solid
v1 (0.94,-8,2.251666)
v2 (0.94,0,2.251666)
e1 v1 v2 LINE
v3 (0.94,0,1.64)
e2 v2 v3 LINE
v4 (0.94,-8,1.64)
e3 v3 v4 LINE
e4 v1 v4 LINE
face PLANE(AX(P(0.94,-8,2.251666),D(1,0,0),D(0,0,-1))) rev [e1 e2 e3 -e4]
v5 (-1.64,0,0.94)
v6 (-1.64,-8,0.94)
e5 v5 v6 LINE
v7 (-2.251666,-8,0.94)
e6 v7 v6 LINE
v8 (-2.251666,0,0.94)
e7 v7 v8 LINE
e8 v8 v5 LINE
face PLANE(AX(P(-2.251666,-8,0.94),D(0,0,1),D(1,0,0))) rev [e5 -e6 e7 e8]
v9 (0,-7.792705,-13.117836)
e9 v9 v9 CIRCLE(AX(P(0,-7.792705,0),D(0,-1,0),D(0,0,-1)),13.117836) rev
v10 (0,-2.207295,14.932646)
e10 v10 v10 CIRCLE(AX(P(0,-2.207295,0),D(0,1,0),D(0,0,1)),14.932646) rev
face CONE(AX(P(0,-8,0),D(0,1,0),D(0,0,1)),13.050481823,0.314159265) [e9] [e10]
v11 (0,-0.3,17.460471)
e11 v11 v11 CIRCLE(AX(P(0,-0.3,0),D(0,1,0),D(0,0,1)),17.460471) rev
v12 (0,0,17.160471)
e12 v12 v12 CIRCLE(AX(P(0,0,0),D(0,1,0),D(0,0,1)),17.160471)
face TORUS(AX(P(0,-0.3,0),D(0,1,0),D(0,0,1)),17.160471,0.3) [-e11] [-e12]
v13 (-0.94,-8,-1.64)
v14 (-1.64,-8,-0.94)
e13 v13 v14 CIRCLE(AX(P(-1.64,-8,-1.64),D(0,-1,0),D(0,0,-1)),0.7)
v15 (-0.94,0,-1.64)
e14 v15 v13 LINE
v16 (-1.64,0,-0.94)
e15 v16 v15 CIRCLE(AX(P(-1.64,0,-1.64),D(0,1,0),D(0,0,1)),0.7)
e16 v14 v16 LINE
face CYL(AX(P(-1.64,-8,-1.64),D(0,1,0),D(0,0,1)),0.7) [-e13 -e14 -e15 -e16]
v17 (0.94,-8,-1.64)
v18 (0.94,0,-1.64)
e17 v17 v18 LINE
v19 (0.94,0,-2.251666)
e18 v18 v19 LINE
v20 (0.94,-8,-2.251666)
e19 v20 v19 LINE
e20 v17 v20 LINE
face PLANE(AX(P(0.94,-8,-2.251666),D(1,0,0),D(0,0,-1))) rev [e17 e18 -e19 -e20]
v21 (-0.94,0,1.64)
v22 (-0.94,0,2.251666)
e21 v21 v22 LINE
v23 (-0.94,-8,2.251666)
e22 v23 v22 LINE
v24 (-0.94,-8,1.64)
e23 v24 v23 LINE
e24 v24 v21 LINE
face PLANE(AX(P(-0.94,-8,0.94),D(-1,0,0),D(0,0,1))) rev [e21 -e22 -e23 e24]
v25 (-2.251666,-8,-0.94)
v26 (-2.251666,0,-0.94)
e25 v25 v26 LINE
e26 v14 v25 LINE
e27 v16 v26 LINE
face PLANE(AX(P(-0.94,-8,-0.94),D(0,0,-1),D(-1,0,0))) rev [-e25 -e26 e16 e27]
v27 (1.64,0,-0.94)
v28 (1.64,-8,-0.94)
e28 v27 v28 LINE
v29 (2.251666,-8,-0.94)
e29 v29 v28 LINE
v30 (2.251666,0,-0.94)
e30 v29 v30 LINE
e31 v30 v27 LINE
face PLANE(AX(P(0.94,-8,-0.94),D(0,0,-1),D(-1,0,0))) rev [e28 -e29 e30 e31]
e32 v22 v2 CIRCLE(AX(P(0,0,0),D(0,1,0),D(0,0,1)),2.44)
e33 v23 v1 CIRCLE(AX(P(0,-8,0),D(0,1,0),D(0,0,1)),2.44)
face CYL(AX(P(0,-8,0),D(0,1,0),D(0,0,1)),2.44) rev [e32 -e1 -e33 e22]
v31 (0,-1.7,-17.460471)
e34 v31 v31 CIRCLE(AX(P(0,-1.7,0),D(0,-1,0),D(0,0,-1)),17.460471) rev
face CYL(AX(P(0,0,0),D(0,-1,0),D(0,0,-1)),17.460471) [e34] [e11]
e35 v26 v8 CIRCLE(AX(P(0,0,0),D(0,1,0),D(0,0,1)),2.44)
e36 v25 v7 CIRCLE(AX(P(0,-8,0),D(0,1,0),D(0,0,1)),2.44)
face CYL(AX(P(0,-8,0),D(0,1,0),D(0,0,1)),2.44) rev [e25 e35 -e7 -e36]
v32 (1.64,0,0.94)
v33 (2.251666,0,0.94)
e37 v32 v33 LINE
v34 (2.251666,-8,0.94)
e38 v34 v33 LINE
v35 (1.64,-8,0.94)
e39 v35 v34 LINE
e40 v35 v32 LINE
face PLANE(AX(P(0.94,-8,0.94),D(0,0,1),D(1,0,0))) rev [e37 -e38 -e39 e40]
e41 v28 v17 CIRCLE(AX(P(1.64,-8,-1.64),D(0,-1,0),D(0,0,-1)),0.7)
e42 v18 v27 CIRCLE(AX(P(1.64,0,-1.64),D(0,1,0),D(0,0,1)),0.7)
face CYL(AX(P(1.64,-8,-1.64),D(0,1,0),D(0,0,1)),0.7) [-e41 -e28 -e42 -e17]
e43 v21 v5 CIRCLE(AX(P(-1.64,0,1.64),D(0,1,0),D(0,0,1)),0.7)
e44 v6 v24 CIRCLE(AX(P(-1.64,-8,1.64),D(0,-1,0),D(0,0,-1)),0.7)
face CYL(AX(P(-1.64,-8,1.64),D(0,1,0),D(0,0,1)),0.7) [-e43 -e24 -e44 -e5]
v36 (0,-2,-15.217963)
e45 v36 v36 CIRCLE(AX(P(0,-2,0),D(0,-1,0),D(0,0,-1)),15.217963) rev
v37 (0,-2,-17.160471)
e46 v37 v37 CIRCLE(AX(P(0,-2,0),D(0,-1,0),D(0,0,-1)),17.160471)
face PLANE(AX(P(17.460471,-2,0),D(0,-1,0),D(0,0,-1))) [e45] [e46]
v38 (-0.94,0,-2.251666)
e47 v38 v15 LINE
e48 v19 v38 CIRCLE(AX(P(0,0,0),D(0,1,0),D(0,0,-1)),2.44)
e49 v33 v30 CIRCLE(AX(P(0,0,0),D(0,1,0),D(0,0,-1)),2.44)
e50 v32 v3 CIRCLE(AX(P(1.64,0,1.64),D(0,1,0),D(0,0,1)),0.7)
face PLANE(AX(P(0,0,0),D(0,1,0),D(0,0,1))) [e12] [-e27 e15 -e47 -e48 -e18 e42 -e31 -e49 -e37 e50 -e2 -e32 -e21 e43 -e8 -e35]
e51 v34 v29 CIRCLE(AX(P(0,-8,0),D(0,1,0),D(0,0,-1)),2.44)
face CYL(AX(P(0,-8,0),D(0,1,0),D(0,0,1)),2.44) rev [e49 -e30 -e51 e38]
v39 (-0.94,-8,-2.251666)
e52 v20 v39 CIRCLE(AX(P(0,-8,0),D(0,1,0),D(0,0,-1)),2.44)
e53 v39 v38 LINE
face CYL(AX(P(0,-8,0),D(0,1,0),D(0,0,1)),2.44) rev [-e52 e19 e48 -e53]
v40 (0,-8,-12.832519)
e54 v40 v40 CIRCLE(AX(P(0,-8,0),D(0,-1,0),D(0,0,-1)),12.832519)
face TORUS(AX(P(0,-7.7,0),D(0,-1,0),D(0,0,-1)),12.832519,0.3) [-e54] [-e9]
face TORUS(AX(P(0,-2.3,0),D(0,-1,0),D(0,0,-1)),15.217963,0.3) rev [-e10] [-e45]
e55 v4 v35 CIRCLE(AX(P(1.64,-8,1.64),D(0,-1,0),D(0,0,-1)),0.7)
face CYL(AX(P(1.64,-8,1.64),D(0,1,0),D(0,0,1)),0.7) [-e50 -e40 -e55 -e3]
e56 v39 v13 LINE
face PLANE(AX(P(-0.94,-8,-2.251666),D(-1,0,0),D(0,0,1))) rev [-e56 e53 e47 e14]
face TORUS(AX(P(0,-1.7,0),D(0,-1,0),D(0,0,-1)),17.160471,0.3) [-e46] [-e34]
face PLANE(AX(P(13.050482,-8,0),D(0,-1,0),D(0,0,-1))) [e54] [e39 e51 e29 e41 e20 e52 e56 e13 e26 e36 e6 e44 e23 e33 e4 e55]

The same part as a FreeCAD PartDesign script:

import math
import FreeCAD as App
import Part
import Sketcher
Q = App.Units.Quantity


def edges_at(feature, points):
    """Names of the edges that pass closest to the given points."""
    edges = feature.Shape.Edges
    near = lambda p: min(range(len(edges)), key=lambda i: edges[i].distToShape(Part.Vertex(*p))[0])
    return sorted({f"Edge{near(p) + 1}" for p in points})


def add_polygon(sketch, points):
    """Adds a closed chain of lines whose ends are joined by coincident constraints."""
    first, n = sketch.GeometryCount, len(points)
    for a, b in zip(points, points[1:] + points[:1]):
        sketch.addGeometry(Part.LineSegment(App.Vector(*a, 0), App.Vector(*b, 0)), False)
    for i in range(n):
        sketch.addConstraint(Sketcher.Constraint("Coincident", first + i, 2, first + (i + 1) % n, 1))

doc = App.newDocument("Part")
params = doc.addObject("Spreadsheet::Sheet", "Params")
for row, (alias, value) in enumerate([
    ("sketch1_height", "8 mm"),
    ("sketch1_height2", "2 mm"),
    ("revolution_angle", "360 deg"),
    ("sketch2_radius", "2.44 mm"),
    ("fillet_radius", "0.7 mm"),
    ("fillet2_radius", "0.3 mm"),
], start=1):
    params.set(f"A{row}", alias)
    params.set(f"B{row}", "=" + value)
    params.setAlias(f"B{row}", alias)

body = doc.addObject("PartDesign::Body", "Body")

sketch1 = body.newObject("Sketcher::SketchObject", "Sketch")
sketch1.AttachmentSupport = (doc.getObject("XY_Plane"), [""])
sketch1.MapMode = "FlatFace"
add_polygon(sketch1, [(17.5, 0), (0, 0), (0, -8), (13.1, -8), (15, -2), (17.5, -2)])
sketch1.addConstraint([
    Sketcher.Constraint("Horizontal", 0),
    Sketcher.Constraint("Vertical", 1),
    Sketcher.Constraint("Horizontal", 2),
    Sketcher.Constraint("Horizontal", 4),
    Sketcher.Constraint("Vertical", 5),
    Sketcher.Constraint("Coincident", 0, 2, -1, 1),
    Sketcher.Constraint("DistanceY", 1, 2, 1, 1, Q("8 mm")),
    Sketcher.Constraint("DistanceY", 5, 1, 5, 2, Q("2 mm")),
    Sketcher.Constraint("Angle", 3, Q("72 deg")),
    Sketcher.Constraint("DistanceX", -1, 1, 3, 2, Q("15 mm")),
    Sketcher.Constraint("DistanceX", 0, 2, 0, 1, Q("17.460471 mm")),
])
sketch1.setExpression("Constraints[12]", "Params.sketch1_height")
sketch1.setExpression("Constraints[13]", "Params.sketch1_height2")
revolution = body.newObject("PartDesign::Revolution", "Revolution")
revolution.Profile = sketch1
revolution.ReferenceAxis = (sketch1, ["V_Axis"])
revolution.setExpression("Angle", "Params.revolution_angle")

sketch2 = body.newObject("Sketcher::SketchObject", "Sketch001")
sketch2.AttachmentSupport = (doc.getObject("XZ_Plane"), [""])
sketch2.MapMode = "FlatFace"
sketch2.addGeometry([
    Part.LineSegment(App.Vector(-0.9, -0.9, 0), App.Vector(-2.3, -0.9, 0)),
    Part.ArcOfCircle(Part.Circle(App.Vector(0, 0, 0), App.Vector(0, 0, 1), 2.4), math.radians(157), math.radians(203)),
    Part.LineSegment(App.Vector(-2.3, 0.9, 0), App.Vector(-0.9, 0.9, 0)),
    Part.LineSegment(App.Vector(-0.9, 0.9, 0), App.Vector(-0.9, 2.3, 0)),
    Part.ArcOfCircle(Part.Circle(App.Vector(0, 0, 0), App.Vector(0, 0, 1), 2.4), math.radians(67), math.radians(113)),
    Part.LineSegment(App.Vector(0.9, 2.3, 0), App.Vector(0.9, 0.9, 0)),
    Part.LineSegment(App.Vector(0.9, 0.9, 0), App.Vector(2.3, 0.9, 0)),
    Part.ArcOfCircle(Part.Circle(App.Vector(0, 0, 0), App.Vector(0, 0, 1), 2.4), math.radians(-23), math.radians(23)),
    Part.LineSegment(App.Vector(2.3, -0.9, 0), App.Vector(0.9, -0.9, 0)),
    Part.LineSegment(App.Vector(0.9, -0.9, 0), App.Vector(0.9, -2.3, 0)),
    Part.ArcOfCircle(Part.Circle(App.Vector(0, 0, 0), App.Vector(0, 0, 1), 2.4), math.radians(-113), math.radians(-67)),
    Part.LineSegment(App.Vector(-0.9, -2.3, 0), App.Vector(-0.9, -0.9, 0)),
], False)
sketch2.addConstraint([
    Sketcher.Constraint("Coincident", 0, 2, 1, 2),
    Sketcher.Constraint("Coincident", 1, 1, 2, 1),
    Sketcher.Constraint("Coincident", 2, 2, 3, 1),
    Sketcher.Constraint("Coincident", 3, 2, 4, 2),
    Sketcher.Constraint("Coincident", 4, 1, 5, 1),
    Sketcher.Constraint("Coincident", 5, 2, 6, 1),
    Sketcher.Constraint("Coincident", 6, 2, 7, 2),
    Sketcher.Constraint("Coincident", 7, 1, 8, 1),
    Sketcher.Constraint("Coincident", 8, 2, 9, 1),
    Sketcher.Constraint("Coincident", 9, 2, 10, 2),
    Sketcher.Constraint("Coincident", 10, 1, 11, 1),
    Sketcher.Constraint("Coincident", 11, 2, 0, 1),
    Sketcher.Constraint("Horizontal", 0),
    Sketcher.Constraint("Horizontal", 2),
    Sketcher.Constraint("Vertical", 3),
    Sketcher.Constraint("Vertical", 5),
    Sketcher.Constraint("Horizontal", 6),
    Sketcher.Constraint("Horizontal", 8),
    Sketcher.Constraint("Vertical", 9),
    Sketcher.Constraint("Vertical", 11),
    Sketcher.Constraint("Coincident", 1, 3, -1, 1),
    Sketcher.Constraint("Coincident", 4, 3, -1, 1),
    Sketcher.Constraint("Coincident", 7, 3, -1, 1),
    Sketcher.Constraint("Coincident", 10, 3, -1, 1),
    Sketcher.Constraint("Equal", 1, 4),
    Sketcher.Constraint("Equal", 4, 7),
    Sketcher.Constraint("Equal", 7, 10),
    Sketcher.Constraint("Symmetric", 2, 2, 8, 2, -1, 1),
    Sketcher.Constraint("Symmetric", 5, 2, 11, 2, -1, 1),
    Sketcher.Constraint("Symmetric", 2, 2, 5, 2, -2),
    Sketcher.Constraint("Equal", 8, 3),
    Sketcher.Constraint("Radius", 1, Q("2.44 mm")),
    Sketcher.Constraint("DistanceY", 0, 2, -1, 1, Q("0.94 mm")),
])
sketch2.setExpression("Constraints[31]", "Params.sketch2_radius")
pocket1 = body.newObject("PartDesign::Pocket", "Pocket")
pocket1.Profile = sketch2
pocket1.Type = "ThroughAll"
pocket1.Reversed = True
doc.recompute()

fillet = body.newObject("PartDesign::Fillet", "Fillet")
fillet.Base = (pocket1, edges_at(pocket1, [
    (-0.94, -4, -0.94),
    (0.94, -4, -0.94),
    (0.94, -4, 0.94),
    (-0.94, -4, 0.94),
]))
fillet.setExpression("Radius", "Params.fillet_radius")
doc.recompute()

fillet2 = body.newObject("PartDesign::Fillet", "Fillet001")
fillet2.Base = (fillet, edges_at(fillet, [
    (0, -8, 13.05),
    (0, -2, 15),
    (0, -2, 17.46),
    (0, 0, 17.46),
]))
fillet2.setExpression("Radius", "Params.fillet2_radius")

doc.recompute()
